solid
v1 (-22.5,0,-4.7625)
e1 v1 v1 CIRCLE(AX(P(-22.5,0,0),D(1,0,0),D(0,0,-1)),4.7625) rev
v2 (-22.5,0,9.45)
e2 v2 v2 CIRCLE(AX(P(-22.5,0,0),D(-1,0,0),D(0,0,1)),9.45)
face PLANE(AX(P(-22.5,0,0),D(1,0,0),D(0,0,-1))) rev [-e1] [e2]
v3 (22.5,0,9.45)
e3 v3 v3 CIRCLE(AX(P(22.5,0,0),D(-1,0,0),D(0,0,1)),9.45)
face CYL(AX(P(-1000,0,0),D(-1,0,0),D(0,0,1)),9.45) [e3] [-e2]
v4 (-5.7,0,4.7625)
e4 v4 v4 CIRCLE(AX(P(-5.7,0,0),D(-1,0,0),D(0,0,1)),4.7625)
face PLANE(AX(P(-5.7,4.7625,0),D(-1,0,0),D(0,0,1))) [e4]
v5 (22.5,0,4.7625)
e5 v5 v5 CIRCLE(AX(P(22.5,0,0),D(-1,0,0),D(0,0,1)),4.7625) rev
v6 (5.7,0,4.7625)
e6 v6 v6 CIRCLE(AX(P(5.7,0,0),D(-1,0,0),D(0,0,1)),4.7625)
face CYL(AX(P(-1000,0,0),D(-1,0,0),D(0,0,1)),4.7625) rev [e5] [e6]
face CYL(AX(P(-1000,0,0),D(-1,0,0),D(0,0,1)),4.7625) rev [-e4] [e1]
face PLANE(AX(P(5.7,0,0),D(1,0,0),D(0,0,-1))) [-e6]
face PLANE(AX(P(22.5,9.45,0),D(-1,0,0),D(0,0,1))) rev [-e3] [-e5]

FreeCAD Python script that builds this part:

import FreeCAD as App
import Part
import Sketcher
Q = App.Units.Quantity


def add_polygon(sketch, points):
    """Adds a closed chain of lines whose ends are joined by coincident constraints."""
    first, n = sketch.GeometryCount, len(points)
    for a, b in zip(points, points[1:] + points[:1]):
        sketch.addGeometry(Part.LineSegment(App.Vector(*a, 0), App.Vector(*b, 0)), False)
    for i in range(n):
        sketch.addConstraint(Sketcher.Constraint("Coincident", first + i, 2, first + (i + 1) % n, 1))

doc = App.newDocument("Part")
body = doc.addObject("PartDesign::Body", "Body")

# Sketch on XY plane
sketch1 = body.newObject("Sketcher::SketchObject", "Sketch")
sketch1.AttachmentSupport = (doc.getObject("XY_Plane"), [""])
sketch1.MapMode = "FlatFace"
add_polygon(sketch1, [(-22, 9), (-22, 0), (22, 0), (22, 9)])  # lines 0-3
sketch1.addConstraint([
    Sketcher.Constraint("Vertical", 0),
    Sketcher.Constraint("Horizontal", 1),
    Sketcher.Constraint("Vertical", 2),
    Sketcher.Constraint("Horizontal", 3),
    Sketcher.Constraint("Symmetric", 0, 2, 1, 2, -1, 1),
    Sketcher.Constraint("DistanceX", 1, 1, 1, 2, Q("45 mm")),
    Sketcher.Constraint("DistanceY", 0, 2, 0, 1, Q("9.45 mm")),
])
revolution = body.newObject("PartDesign::Revolution", "Revolution")
revolution.Profile = sketch1
revolution.ReferenceAxis = (sketch1, ["H_Axis"])
revolution.Angle = 360

# Sketch on XY plane
sketch2 = body.newObject("Sketcher::SketchObject", "Sketch001")
sketch2.AttachmentSupport = (doc.getObject("XY_Plane"), [""])
sketch2.MapMode = "FlatFace"
add_polygon(sketch2, [(-23.5, 4.8), (-23.5, 0), (-5.7, 0), (-5.7, 4.8)])  # lines 0-3
sketch2.addConstraint([
    Sketcher.Constraint("Vertical", 0),
    Sketcher.Constraint("Horizontal", 1),
    Sketcher.Constraint("Vertical", 2),
    Sketcher.Constraint("Horizontal", 3),
    Sketcher.Constraint("PointOnObject", 0, 2, -1),
    Sketcher.Constraint("DistanceX", 1, 1, 1, 2, Q("17.8 mm")),
    Sketcher.Constraint("DistanceX", 0, 2, -1, 1, Q("23.5 mm")),
    Sketcher.Constraint("DistanceY", 0, 2, 0, 1, Q("4.7625 mm")),
])
groove = body.newObject("PartDesign::Groove", "Groove")
groove.Profile = sketch2
groove.ReferenceAxis = (sketch2, ["H_Axis"])
groove.Angle = 360

# Sketch on XY plane
sketch3 = body.newObject("Sketcher::SketchObject", "Sketch002")
sketch3.AttachmentSupport = (doc.getObject("XY_Plane"), [""])
sketch3.MapMode = "FlatFace"
add_polygon(sketch3, [(5.7, 4.8), (5.7, 0), (23.5, 0), (23.5, 4.8)])  # lines 0-3
sketch3.addConstraint([
    Sketcher.Constraint("Vertical", 0),
    Sketcher.Constraint("Horizontal", 1),
    Sketcher.Constraint("Vertical", 2),
    Sketcher.Constraint("Horizontal", 3),
    Sketcher.Constraint("PointOnObject", 0, 2, -1),
    Sketcher.Constraint("DistanceX", 1, 1, 1, 2, Q("17.8 mm")),
    Sketcher.Constraint("DistanceX", -1, 1, 0, 2, Q("5.7 mm")),
    Sketcher.Constraint("DistanceY", 0, 2, 0, 1, Q("4.7625 mm")),
])
groove2 = body.newObject("PartDesign::Groove", "Groove001")
groove2.Profile = sketch3
groove2.ReferenceAxis = (sketch3, ["H_Axis"])
groove2.Angle = 360

doc.recompute()
